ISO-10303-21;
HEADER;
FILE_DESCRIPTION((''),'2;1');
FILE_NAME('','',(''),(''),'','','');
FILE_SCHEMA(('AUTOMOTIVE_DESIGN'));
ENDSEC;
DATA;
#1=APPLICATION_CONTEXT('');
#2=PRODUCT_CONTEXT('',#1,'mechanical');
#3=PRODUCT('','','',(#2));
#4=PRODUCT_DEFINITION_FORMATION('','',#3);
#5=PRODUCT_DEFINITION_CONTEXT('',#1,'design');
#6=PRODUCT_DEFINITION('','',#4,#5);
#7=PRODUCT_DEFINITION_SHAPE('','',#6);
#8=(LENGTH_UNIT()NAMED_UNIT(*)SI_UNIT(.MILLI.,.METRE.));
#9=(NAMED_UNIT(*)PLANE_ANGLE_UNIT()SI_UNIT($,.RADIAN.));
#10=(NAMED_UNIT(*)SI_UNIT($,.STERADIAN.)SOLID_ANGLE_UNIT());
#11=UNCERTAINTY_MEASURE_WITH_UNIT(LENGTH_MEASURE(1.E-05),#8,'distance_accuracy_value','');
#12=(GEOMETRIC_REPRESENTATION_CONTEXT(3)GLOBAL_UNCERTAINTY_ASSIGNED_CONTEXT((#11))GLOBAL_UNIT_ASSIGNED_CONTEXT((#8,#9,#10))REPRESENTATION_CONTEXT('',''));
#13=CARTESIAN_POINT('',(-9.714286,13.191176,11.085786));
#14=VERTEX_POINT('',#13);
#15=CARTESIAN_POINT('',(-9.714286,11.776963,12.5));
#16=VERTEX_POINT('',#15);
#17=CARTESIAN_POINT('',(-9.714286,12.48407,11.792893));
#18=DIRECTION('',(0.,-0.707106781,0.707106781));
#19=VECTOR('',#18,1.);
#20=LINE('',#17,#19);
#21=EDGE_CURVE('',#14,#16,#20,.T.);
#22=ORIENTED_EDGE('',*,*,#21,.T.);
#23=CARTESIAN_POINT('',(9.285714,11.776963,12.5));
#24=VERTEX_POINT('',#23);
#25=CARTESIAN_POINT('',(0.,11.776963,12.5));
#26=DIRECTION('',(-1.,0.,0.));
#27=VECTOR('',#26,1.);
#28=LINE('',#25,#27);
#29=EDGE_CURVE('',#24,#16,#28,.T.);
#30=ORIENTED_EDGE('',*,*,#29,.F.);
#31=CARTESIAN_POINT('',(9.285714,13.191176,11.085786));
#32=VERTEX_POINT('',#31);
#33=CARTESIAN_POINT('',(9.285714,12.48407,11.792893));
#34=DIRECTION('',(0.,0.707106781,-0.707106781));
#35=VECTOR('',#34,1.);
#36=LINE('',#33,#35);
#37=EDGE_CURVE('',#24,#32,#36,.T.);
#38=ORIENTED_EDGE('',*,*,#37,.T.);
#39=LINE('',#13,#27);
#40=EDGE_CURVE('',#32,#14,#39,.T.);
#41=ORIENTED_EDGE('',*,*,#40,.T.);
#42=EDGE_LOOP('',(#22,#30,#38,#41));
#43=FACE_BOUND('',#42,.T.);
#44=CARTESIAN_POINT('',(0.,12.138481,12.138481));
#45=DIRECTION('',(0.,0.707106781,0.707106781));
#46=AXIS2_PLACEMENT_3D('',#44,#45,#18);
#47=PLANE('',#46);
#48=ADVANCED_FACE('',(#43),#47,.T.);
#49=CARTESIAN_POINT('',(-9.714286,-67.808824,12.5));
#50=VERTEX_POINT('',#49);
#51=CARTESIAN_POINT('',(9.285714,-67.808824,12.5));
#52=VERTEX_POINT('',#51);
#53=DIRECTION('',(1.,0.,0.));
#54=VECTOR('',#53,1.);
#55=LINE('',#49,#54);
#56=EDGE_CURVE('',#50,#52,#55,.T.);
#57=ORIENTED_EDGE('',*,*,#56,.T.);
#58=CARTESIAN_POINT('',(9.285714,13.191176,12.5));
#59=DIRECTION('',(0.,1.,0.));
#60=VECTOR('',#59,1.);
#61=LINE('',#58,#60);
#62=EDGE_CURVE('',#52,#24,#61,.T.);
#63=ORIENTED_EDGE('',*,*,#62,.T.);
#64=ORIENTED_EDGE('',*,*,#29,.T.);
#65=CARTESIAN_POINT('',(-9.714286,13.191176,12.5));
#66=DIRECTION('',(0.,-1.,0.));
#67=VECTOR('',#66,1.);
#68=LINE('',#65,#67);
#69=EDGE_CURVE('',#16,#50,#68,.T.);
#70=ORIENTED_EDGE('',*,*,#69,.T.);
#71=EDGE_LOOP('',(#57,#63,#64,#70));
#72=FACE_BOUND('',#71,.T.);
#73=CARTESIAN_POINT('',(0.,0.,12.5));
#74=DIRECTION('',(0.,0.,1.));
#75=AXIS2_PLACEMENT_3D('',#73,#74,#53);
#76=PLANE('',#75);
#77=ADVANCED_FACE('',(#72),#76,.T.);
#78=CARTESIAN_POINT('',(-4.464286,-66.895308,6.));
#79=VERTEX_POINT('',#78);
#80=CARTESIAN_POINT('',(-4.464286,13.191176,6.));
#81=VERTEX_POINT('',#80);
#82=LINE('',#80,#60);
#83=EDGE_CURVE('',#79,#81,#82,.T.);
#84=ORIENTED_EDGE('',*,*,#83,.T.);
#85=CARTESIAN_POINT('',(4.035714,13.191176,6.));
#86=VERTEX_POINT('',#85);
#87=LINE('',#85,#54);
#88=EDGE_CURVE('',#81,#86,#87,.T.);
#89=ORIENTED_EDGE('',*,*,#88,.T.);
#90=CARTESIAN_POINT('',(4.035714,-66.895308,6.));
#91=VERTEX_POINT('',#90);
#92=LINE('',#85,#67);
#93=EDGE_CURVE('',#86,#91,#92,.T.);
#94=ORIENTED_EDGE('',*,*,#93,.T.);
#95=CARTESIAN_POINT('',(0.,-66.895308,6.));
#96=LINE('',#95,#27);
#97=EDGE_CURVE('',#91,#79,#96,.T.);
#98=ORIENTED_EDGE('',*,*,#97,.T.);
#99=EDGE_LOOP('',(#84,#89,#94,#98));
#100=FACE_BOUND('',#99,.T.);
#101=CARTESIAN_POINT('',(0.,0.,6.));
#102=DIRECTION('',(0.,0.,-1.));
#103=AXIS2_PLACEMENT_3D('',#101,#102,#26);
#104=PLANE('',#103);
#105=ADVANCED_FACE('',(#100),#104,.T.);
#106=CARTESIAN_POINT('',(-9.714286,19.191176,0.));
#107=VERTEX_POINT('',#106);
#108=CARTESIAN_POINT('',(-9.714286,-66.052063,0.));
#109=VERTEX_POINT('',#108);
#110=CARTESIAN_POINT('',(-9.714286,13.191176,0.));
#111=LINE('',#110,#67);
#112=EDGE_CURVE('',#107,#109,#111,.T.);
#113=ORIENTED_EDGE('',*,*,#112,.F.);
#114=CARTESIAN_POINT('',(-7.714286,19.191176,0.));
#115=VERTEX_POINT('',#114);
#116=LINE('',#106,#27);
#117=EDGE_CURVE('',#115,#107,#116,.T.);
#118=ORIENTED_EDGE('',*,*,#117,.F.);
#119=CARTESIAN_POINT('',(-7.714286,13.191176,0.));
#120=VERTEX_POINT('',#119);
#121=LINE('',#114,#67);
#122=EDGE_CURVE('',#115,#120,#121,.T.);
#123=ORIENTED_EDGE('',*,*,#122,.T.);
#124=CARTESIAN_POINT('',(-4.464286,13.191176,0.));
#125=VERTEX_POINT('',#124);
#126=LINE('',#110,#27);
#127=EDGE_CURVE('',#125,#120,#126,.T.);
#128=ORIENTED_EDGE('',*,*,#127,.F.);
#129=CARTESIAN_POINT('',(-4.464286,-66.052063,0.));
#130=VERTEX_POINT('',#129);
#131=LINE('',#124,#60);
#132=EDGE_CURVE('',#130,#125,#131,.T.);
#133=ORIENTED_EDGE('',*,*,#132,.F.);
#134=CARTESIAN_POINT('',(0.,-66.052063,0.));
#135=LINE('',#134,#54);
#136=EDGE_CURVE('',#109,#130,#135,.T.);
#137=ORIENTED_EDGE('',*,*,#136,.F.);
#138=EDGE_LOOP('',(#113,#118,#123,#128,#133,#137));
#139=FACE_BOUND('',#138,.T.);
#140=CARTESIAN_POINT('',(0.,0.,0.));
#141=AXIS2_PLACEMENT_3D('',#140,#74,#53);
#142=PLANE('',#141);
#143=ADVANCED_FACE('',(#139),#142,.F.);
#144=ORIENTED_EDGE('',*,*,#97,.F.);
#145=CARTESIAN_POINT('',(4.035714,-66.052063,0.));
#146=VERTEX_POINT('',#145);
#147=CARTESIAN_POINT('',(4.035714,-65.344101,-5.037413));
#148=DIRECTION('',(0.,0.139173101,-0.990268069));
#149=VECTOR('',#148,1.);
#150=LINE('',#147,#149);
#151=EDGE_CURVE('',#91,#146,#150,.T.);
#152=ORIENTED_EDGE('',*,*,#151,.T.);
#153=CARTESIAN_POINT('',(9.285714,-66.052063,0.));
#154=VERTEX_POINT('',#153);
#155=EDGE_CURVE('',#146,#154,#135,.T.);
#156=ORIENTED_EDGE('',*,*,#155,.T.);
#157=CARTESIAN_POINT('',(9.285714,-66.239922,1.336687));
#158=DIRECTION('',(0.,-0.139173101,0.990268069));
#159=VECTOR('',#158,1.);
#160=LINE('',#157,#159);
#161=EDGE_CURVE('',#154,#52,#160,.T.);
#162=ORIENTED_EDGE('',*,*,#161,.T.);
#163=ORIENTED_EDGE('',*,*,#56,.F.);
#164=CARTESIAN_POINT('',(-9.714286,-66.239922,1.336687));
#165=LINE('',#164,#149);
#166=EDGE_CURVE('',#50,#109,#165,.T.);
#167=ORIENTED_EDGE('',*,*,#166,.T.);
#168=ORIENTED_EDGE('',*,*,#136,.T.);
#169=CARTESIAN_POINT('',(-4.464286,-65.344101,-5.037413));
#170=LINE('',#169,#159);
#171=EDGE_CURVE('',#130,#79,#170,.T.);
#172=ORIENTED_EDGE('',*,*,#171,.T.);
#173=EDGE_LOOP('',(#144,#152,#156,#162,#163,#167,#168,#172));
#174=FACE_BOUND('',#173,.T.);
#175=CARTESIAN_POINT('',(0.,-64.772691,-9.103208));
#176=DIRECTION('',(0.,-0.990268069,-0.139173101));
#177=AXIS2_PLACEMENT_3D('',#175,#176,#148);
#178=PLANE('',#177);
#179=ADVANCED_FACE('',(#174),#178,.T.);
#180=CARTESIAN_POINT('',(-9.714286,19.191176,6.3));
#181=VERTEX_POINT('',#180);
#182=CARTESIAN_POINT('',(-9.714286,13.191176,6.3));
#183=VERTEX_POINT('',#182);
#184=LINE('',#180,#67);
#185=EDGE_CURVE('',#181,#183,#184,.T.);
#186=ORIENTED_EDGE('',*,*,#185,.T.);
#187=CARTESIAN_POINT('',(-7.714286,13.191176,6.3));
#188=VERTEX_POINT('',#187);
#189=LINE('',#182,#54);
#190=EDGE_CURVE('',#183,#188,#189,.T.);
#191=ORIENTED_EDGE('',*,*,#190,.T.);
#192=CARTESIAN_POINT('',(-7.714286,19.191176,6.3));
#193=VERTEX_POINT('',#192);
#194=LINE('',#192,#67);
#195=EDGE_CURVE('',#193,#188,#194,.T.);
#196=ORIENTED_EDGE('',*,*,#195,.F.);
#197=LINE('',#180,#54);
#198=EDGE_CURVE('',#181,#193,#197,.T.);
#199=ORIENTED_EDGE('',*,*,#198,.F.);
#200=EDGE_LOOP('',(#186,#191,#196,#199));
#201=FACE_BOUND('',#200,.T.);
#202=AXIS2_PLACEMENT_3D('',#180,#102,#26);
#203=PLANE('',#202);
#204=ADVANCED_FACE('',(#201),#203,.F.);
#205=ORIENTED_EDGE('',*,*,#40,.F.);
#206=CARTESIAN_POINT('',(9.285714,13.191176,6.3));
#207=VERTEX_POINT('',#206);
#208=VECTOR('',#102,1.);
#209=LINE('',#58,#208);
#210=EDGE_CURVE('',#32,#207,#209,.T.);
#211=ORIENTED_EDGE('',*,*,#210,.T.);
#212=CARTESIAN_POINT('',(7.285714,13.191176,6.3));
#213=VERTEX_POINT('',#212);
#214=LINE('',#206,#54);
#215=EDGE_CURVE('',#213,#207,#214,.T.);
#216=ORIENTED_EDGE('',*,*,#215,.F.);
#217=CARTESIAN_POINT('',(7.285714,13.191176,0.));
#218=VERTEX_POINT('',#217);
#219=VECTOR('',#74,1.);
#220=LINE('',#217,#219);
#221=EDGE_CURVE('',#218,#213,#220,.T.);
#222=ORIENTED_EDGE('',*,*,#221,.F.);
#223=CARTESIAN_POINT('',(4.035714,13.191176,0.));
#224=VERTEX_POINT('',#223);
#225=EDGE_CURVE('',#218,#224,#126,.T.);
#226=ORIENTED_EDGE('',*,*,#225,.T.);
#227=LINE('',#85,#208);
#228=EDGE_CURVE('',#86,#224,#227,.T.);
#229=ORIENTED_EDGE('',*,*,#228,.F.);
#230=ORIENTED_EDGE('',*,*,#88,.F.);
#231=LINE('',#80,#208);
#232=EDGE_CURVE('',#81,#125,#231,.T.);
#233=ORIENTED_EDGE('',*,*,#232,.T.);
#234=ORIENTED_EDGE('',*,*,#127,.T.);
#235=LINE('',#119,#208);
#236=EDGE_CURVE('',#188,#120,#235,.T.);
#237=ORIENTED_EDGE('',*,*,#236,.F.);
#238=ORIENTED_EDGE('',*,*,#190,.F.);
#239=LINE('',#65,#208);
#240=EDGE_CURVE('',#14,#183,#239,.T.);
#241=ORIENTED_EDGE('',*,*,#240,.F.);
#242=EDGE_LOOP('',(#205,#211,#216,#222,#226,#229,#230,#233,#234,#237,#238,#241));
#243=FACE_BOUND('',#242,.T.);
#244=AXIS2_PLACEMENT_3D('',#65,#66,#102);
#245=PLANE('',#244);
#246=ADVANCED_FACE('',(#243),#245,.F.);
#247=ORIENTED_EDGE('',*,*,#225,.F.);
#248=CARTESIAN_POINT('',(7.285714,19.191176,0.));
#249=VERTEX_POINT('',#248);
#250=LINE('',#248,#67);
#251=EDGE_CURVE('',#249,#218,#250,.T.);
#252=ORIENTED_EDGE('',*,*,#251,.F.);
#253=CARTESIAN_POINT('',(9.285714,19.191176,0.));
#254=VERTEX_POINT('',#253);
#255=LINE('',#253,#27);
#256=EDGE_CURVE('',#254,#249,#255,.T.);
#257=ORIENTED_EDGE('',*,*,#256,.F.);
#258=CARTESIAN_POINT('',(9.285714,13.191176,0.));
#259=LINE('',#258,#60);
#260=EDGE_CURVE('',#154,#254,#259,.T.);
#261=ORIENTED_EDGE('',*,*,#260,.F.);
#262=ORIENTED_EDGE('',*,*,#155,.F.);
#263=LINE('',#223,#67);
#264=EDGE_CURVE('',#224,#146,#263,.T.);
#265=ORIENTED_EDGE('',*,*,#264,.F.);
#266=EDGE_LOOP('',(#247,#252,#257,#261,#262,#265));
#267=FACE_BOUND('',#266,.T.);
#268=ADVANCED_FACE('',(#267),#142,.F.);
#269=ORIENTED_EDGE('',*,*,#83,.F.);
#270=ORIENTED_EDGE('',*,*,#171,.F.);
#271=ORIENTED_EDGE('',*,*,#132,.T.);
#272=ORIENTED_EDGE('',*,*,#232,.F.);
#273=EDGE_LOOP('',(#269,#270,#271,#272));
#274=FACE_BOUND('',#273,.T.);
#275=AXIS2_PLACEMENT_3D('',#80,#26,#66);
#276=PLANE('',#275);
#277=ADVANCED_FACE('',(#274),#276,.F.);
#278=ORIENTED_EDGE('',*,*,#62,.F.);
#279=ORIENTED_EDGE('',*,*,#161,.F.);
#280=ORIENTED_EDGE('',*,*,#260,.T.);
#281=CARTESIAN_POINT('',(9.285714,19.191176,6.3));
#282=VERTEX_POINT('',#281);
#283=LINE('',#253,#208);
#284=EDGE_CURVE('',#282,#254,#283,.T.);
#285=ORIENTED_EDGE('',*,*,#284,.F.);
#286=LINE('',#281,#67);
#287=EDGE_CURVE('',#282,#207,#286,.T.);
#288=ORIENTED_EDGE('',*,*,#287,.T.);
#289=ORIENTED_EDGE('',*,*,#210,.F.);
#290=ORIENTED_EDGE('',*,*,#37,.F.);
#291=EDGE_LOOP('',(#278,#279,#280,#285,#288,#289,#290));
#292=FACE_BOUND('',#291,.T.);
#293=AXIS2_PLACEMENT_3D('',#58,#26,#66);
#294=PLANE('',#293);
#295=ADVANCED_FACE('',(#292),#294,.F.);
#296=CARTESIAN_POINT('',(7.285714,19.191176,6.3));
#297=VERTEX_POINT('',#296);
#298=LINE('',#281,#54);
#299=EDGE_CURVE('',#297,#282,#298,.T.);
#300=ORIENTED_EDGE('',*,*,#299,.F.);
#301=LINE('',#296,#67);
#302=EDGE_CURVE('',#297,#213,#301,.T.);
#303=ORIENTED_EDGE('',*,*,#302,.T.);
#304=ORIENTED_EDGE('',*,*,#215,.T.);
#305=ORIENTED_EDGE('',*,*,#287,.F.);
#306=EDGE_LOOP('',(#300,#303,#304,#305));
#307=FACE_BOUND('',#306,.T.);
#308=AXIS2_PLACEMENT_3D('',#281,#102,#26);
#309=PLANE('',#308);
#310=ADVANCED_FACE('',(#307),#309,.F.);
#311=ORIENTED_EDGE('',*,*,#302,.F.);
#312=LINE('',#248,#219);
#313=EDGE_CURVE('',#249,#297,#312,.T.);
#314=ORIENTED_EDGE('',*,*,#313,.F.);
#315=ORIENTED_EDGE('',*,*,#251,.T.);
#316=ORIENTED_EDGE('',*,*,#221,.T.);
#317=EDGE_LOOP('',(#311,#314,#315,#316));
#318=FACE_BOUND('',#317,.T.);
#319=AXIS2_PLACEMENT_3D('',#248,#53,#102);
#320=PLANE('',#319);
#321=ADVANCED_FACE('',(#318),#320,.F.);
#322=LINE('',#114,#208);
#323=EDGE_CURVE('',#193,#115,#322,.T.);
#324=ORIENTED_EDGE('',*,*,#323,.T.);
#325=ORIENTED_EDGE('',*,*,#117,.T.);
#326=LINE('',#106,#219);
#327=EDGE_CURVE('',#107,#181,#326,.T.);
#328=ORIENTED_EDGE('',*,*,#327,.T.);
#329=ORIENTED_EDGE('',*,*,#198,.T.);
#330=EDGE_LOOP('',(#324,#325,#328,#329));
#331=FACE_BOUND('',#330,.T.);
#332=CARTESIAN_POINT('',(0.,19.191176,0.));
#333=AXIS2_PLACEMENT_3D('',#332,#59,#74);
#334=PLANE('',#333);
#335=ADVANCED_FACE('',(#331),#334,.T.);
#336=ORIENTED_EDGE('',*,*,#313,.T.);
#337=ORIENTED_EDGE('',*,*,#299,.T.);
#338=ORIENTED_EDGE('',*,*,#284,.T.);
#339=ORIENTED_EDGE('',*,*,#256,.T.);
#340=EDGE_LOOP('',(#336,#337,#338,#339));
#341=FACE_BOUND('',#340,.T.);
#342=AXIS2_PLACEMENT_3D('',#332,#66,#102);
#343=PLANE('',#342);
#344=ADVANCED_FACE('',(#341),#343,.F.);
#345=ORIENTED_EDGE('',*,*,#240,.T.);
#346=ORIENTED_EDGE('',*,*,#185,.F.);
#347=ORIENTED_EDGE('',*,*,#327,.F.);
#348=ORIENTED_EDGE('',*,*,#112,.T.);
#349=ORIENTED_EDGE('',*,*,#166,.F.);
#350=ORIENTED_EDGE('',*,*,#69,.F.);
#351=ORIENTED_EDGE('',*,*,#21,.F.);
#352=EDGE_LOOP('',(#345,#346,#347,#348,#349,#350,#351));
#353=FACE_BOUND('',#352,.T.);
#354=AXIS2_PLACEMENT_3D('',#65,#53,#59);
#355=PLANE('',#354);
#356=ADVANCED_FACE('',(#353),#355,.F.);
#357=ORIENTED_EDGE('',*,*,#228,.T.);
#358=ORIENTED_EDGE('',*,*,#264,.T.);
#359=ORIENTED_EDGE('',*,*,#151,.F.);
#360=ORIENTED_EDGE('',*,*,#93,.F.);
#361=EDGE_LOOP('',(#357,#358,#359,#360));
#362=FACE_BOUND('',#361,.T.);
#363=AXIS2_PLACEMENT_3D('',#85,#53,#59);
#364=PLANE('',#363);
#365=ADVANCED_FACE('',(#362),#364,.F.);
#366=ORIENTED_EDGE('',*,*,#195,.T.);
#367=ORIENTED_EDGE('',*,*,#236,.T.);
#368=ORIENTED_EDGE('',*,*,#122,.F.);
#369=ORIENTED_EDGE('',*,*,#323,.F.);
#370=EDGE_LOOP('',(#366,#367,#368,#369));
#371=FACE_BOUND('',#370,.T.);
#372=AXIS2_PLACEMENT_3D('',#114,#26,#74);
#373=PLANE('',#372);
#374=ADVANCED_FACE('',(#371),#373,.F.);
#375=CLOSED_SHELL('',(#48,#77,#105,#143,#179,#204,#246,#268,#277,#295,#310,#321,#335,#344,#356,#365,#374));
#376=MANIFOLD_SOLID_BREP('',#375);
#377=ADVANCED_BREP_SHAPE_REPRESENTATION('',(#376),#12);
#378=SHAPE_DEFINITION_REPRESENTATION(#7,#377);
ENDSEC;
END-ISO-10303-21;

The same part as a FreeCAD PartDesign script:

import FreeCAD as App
import Part
import Sketcher


def add_polygon(sketch, points):
    """Adds a closed chain of lines whose ends are joined by coincident constraints."""
    first, n = sketch.GeometryCount, len(points)
    for a, b in zip(points, points[1:] + points[:1]):
        sketch.addGeometry(Part.LineSegment(App.Vector(*a, 0), App.Vector(*b, 0)), False)
    for i in range(n):
        sketch.addConstraint(Sketcher.Constraint("Coincident", first + i, 2, first + (i + 1) % n, 1))

doc = App.newDocument("Part")
params = doc.addObject("Spreadsheet::Sheet", "Params")
for row, (alias, value) in enumerate([
    ("sketch1_width", "19 mm"),
    ("sketch1_height", "81 mm"),
    ("pad1_length", "12.5 mm"),
    ("sketch2_height", "81 mm"),
    ("sketch2_width", "8.5 mm"),
    ("pocket1_length", "6 mm"),
    ("sketch5_width", "2 mm"),
    ("sketch5_height", "6.3 mm"),
    ("pad2_length", "6 mm"),
], start=1):
    params.set(f"A{row}", alias)
    params.set(f"B{row}", "=" + value)
    params.setAlias(f"B{row}", alias)

body = doc.addObject("PartDesign::Body", "Body")

# Sketch on XY plane
sketch1 = body.newObject("Sketcher::SketchObject", "Sketch")
sketch1.AttachmentSupport = (doc.getObject("XY_Plane"), [""])
sketch1.MapMode = "FlatFace"
add_polygon(sketch1, [(-9.714286, 13.191176), (-9.714286, -67.808824), (9.285714, -67.808824), (9.285714, 13.191176)])  # lines 0-3
sketch1.addConstraint(Sketcher.Constraint("Vertical", 0))
sketch1.addConstraint(Sketcher.Constraint("Horizontal", 1))
sketch1.addConstraint(Sketcher.Constraint("Vertical", 2))
sketch1.addConstraint(Sketcher.Constraint("Horizontal", 3))
sketch1.addConstraint(Sketcher.Constraint("DistanceX", 1, 1, 1, 2, 19.0))
sketch1.addConstraint(Sketcher.Constraint("DistanceY", 0, 2, 0, 1, 81.0))
sketch1.addConstraint(Sketcher.Constraint("DistanceX", 0, 2, -1, 1, 9.714286))
sketch1.addConstraint(Sketcher.Constraint("DistanceY", 0, 2, -1, 1, 67.808824))
sketch1.setExpression("Constraints[8]", "Params.sketch1_width")
sketch1.setExpression("Constraints[9]", "Params.sketch1_height")
pad1 = body.newObject("PartDesign::Pad", "Pad")
pad1.Profile = sketch1
pad1.setExpression("Length", "Params.pad1_length")

# Sketch on XY plane
sketch2 = body.newObject("Sketcher::SketchObject", "Sketch001")
sketch2.AttachmentSupport = (doc.getObject("XY_Plane"), [""])
sketch2.MapMode = "FlatFace"
add_polygon(sketch2, [(4.035714, 13.191176), (4.035714, -67.808824), (-4.464286, -67.808824), (-4.464286, 13.191176)])  # lines 0-3
sketch2.addConstraint(Sketcher.Constraint("Vertical", 0))
sketch2.addConstraint(Sketcher.Constraint("Horizontal", 1))
sketch2.addConstraint(Sketcher.Constraint("Vertical", 2))
sketch2.addConstraint(Sketcher.Constraint("Horizontal", 3))
sketch2.addConstraint(Sketcher.Constraint("DistanceY", 0, 2, 0, 1, 81.0))
sketch2.addConstraint(Sketcher.Constraint("DistanceX", 1, 2, 1, 1, 8.5))
sketch2.addConstraint(Sketcher.Constraint("DistanceX", -1, 1, 0, 2, 4.035714))
sketch2.addConstraint(Sketcher.Constraint("DistanceY", 0, 2, -1, 1, 67.808824))
sketch2.setExpression("Constraints[8]", "Params.sketch2_height")
sketch2.setExpression("Constraints[9]", "Params.sketch2_width")
pocket1 = body.newObject("PartDesign::Pocket", "Pocket")
pocket1.Profile = sketch2
pocket1.setExpression("Length", "Params.pocket1_length")
pocket1.Reversed = True

# Sketch on an angled plane
sketch3 = body.newObject("Sketcher::SketchObject", "Sketch002")
sketch3.Placement = App.Placement(App.Vector(0, -64.772691, -9.103208), App.Rotation(App.Vector(1, 0, 0), App.Vector(0, -0.139173101, 0.990268069), App.Vector(0, -0.990268069, -0.139173101), "ZXY"))
add_polygon(sketch3, [(-16.62948, 27.530146), (-16.62948, 7.445525), (15.154919, 7.445525), (15.154919, 27.530146)])  # lines 0-3
sketch3.addConstraint(Sketcher.Constraint("Vertical", 0))
sketch3.addConstraint(Sketcher.Constraint("Horizontal", 1))
sketch3.addConstraint(Sketcher.Constraint("Vertical", 2))
sketch3.addConstraint(Sketcher.Constraint("Horizontal", 3))
sketch3.addConstraint(Sketcher.Constraint("DistanceX", 1, 1, 1, 2, 31.784399))
sketch3.addConstraint(Sketcher.Constraint("DistanceY", 0, 2, 0, 1, 20.08462))
sketch3.addConstraint(Sketcher.Constraint("DistanceX", 0, 2, -1, 1, 16.62948))
sketch3.addConstraint(Sketcher.Constraint("DistanceY", -1, 1, 0, 2, 7.445525))
pocket2 = body.newObject("PartDesign::Pocket", "Pocket001")
pocket2.Profile = sketch3
pocket2.Type = "ThroughAll"
pocket2.Reversed = True

# Sketch on an angled plane
sketch4 = body.newObject("Sketcher::SketchObject", "Sketch003")
sketch4.Placement = App.Placement(App.Vector(0, 12.138481, 12.138481), App.Rotation(App.Vector(-1, 0, 0), App.Vector(0, -0.707106781, 0.707106781), App.Vector(0, 0.707106781, 0.707106781), "ZXY"))
add_polygon(sketch4, [(-13.808926, 2.378022), (-13.808926, -15.119197), (13.984345, -15.119197), (13.984345, 2.378022)])  # lines 0-3
sketch4.addConstraint(Sketcher.Constraint("Vertical", 0))
sketch4.addConstraint(Sketcher.Constraint("Horizontal", 1))
sketch4.addConstraint(Sketcher.Constraint("Vertical", 2))
sketch4.addConstraint(Sketcher.Constraint("Horizontal", 3))
sketch4.addConstraint(Sketcher.Constraint("DistanceX", 1, 1, 1, 2, 27.793271))
sketch4.addConstraint(Sketcher.Constraint("DistanceY", 0, 2, 0, 1, 17.497219))
sketch4.addConstraint(Sketcher.Constraint("DistanceX", 0, 2, -1, 1, 13.808926))
sketch4.addConstraint(Sketcher.Constraint("DistanceY", 0, 2, -1, 1, 15.119197))
pocket3 = body.newObject("PartDesign::Pocket", "Pocket002")
pocket3.Profile = sketch4
pocket3.Type = "ThroughAll"
pocket3.Reversed = True

# Sketch on XZ plane
sketch5 = body.newObject("Sketcher::SketchObject", "Sketch004")
sketch5.AttachmentSupport = (doc.getObject("XZ_Plane"), [""])
sketch5.MapMode = "FlatFace"
sketch5.AttachmentOffset = App.Placement(App.Vector(0, 0, -13.191176), App.Rotation())
add_polygon(sketch5, [(-9.714286, 0), (-9.714286, 6.3), (-7.714286, 6.3), (-7.714286, 0)])  # lines 0-3
add_polygon(sketch5, [(7.285714, 0), (7.285714, 6.3), (9.285714, 6.3), (9.285714, 0)])  # lines 4-7
sketch5.addConstraint(Sketcher.Constraint("Vertical", 0))
sketch5.addConstraint(Sketcher.Constraint("Horizontal", 1))
sketch5.addConstraint(Sketcher.Constraint("Vertical", 2))
sketch5.addConstraint(Sketcher.Constraint("Horizontal", 3))
sketch5.addConstraint(Sketcher.Constraint("Vertical", 4))
sketch5.addConstraint(Sketcher.Constraint("Horizontal", 5))
sketch5.addConstraint(Sketcher.Constraint("Vertical", 6))
sketch5.addConstraint(Sketcher.Constraint("Horizontal", 7))
sketch5.addConstraint(Sketcher.Constraint("PointOnObject", 2, 2, -1))
sketch5.addConstraint(Sketcher.Constraint("PointOnObject", 6, 2, -1))
sketch5.addConstraint(Sketcher.Constraint("Horizontal", 1, 2, 4, 2))
sketch5.addConstraint(Sketcher.Constraint("Equal", 3, 5))
sketch5.addConstraint(Sketcher.Constraint("DistanceX", 1, 1, 1, 2, 2.0))
sketch5.addConstraint(Sketcher.Constraint("DistanceY", 0, 1, 0, 2, 6.3))
sketch5.addConstraint(Sketcher.Constraint("DistanceX", 1, 2, 4, 2, 15.0))
sketch5.addConstraint(Sketcher.Constraint("DistanceX", 0, 2, -1, 1, 9.714286))
sketch5.setExpression("Constraints[20]", "Params.sketch5_width")
sketch5.setExpression("Constraints[21]", "Params.sketch5_height")
pad2 = body.newObject("PartDesign::Pad", "Pad001")
pad2.Profile = sketch5
pad2.setExpression("Length", "Params.pad2_length")
pad2.Reversed = True

doc.recompute()
